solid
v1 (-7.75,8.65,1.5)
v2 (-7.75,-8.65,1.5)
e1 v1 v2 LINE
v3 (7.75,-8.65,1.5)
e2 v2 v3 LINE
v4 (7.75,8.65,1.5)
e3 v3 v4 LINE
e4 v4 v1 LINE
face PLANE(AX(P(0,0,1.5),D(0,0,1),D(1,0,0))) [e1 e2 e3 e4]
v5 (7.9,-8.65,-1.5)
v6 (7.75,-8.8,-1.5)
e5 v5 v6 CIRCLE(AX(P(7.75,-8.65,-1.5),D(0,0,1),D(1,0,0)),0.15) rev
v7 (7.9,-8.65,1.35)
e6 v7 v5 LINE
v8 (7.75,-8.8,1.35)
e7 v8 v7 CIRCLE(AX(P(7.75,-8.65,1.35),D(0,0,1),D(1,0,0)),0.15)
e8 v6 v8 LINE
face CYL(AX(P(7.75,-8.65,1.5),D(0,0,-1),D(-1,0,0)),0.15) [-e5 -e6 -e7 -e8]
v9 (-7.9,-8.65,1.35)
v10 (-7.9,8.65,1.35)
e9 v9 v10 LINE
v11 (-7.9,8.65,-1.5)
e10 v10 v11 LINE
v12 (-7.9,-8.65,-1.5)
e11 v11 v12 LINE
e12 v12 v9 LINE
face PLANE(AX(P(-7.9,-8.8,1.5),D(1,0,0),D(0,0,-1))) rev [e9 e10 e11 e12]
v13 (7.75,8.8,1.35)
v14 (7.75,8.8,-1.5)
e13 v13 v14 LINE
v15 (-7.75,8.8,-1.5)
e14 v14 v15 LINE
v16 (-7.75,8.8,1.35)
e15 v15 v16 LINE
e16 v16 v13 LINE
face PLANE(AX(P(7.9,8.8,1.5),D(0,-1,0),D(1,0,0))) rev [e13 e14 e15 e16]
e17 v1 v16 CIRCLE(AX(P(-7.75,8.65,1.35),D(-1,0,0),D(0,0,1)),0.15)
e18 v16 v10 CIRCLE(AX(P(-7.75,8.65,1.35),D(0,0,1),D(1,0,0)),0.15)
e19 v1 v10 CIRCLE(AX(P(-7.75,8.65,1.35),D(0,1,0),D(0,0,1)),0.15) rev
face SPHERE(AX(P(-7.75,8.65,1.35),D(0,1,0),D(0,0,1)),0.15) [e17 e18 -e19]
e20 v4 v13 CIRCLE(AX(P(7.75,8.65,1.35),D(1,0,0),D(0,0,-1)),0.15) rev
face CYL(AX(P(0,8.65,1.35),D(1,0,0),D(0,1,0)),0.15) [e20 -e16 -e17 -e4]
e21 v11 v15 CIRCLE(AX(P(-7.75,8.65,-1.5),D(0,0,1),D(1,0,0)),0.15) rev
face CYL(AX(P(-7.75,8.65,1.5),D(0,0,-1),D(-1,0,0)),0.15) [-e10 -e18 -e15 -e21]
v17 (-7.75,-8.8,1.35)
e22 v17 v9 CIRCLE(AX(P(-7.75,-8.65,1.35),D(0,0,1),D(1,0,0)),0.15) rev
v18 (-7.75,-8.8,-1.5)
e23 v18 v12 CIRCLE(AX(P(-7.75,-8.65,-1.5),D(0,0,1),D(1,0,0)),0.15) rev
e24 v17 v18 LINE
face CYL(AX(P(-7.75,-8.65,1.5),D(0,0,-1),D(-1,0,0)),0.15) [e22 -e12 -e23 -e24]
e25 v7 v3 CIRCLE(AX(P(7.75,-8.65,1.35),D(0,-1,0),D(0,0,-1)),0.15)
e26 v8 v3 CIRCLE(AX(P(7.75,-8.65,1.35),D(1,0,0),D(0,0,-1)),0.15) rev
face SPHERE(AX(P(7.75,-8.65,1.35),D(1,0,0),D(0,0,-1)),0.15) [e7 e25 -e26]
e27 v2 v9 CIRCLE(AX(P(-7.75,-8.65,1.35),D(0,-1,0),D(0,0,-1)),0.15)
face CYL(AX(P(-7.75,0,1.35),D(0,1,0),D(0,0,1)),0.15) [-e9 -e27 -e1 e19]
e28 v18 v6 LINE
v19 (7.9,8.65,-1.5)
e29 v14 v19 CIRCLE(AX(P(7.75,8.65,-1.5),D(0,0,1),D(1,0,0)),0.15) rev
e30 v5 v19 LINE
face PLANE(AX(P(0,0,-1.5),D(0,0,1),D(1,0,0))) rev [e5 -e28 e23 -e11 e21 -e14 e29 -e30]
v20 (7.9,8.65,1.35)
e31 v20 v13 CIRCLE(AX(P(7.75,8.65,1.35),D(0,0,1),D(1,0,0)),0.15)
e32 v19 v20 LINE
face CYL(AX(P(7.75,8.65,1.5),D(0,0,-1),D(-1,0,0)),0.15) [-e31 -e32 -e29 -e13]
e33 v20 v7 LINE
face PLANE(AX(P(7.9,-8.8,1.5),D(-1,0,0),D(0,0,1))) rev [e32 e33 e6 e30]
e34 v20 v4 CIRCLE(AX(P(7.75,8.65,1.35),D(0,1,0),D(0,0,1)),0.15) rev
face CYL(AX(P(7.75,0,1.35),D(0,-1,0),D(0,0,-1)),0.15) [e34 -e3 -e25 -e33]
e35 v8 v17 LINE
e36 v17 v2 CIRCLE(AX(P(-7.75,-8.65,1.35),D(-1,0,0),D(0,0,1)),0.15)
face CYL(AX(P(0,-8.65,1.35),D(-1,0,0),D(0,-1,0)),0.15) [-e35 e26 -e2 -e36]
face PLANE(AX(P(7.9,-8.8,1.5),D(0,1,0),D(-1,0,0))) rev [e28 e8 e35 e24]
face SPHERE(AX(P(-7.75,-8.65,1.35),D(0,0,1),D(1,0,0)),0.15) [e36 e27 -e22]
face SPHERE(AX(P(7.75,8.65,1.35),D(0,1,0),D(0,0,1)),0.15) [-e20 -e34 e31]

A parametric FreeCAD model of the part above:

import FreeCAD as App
import Part
import Sketcher
from FreeCAD import Vector
Q = App.Units.Quantity


def edges_at(feature, points):
    """Names of the edges that pass closest to the given points."""
    edges = feature.Shape.Edges
    near = lambda p: min(range(len(edges)), key=lambda i: edges[i].distToShape(Part.Vertex(*p))[0])
    return sorted({f"Edge{near(p) + 1}" for p in points})

doc = App.newDocument("Part")
body = doc.addObject("PartDesign::Body", "Body")

sketch1 = body.newObject("Sketcher::SketchObject", "Sketch")
sketch1.AttachmentSupport = (doc.getObject("XY_Plane"), [""])
sketch1.MapMode = "FlatFace"
sketch1.addGeometry([
    Part.LineSegment(Vector(-7.9, 8.8, 0), Vector(-7.9, -8.8, 0)),
    Part.LineSegment(Vector(-7.9, -8.8, 0), Vector(7.9, -8.8, 0)),
    Part.LineSegment(Vector(7.9, -8.8, 0), Vector(7.9, 8.8, 0)),
    Part.LineSegment(Vector(7.9, 8.8, 0), Vector(-7.9, 8.8, 0)),
], False)
sketch1.addConstraint([
    Sketcher.Constraint("Coincident", 0, 2, 1, 1),
    Sketcher.Constraint("Coincident", 1, 2, 2, 1),
    Sketcher.Constraint("Coincident", 2, 2, 3, 1),
    Sketcher.Constraint("Coincident", 3, 2, 0, 1),
    Sketcher.Constraint("Vertical", 0),
    Sketcher.Constraint("Horizontal", 1),
    Sketcher.Constraint("Vertical", 2),
    Sketcher.Constraint("Horizontal", 3),
    Sketcher.Constraint("Symmetric", 0, 2, 2, 2, -1, 1),
    Sketcher.Constraint("DistanceX", 1, 1, 1, 2, Q("15.8 mm")),
    Sketcher.Constraint("DistanceY", 0, 2, 0, 1, Q("17.6 mm")),
])
pad1 = body.newObject("PartDesign::Pad", "Pad")
pad1.Profile = sketch1
pad1.Length = 3
pad1.Midplane = True
doc.recompute()

fillet = body.newObject("PartDesign::Fillet", "Fillet")
fillet.Base = (pad1, edges_at(pad1, [
    (7.9, 0, 1.5),
    (0, 8.8, 1.5),
    (-7.9, 0, 1.5),
    (-7.9, 8.8, 0),
    (7.9, 8.8, 0),
    (7.9, -8.8, 0),
    (-7.9, -8.8, 0),
    (0, -8.8, 1.5),
]))
fillet.Radius = 0.15

doc.recompute()
